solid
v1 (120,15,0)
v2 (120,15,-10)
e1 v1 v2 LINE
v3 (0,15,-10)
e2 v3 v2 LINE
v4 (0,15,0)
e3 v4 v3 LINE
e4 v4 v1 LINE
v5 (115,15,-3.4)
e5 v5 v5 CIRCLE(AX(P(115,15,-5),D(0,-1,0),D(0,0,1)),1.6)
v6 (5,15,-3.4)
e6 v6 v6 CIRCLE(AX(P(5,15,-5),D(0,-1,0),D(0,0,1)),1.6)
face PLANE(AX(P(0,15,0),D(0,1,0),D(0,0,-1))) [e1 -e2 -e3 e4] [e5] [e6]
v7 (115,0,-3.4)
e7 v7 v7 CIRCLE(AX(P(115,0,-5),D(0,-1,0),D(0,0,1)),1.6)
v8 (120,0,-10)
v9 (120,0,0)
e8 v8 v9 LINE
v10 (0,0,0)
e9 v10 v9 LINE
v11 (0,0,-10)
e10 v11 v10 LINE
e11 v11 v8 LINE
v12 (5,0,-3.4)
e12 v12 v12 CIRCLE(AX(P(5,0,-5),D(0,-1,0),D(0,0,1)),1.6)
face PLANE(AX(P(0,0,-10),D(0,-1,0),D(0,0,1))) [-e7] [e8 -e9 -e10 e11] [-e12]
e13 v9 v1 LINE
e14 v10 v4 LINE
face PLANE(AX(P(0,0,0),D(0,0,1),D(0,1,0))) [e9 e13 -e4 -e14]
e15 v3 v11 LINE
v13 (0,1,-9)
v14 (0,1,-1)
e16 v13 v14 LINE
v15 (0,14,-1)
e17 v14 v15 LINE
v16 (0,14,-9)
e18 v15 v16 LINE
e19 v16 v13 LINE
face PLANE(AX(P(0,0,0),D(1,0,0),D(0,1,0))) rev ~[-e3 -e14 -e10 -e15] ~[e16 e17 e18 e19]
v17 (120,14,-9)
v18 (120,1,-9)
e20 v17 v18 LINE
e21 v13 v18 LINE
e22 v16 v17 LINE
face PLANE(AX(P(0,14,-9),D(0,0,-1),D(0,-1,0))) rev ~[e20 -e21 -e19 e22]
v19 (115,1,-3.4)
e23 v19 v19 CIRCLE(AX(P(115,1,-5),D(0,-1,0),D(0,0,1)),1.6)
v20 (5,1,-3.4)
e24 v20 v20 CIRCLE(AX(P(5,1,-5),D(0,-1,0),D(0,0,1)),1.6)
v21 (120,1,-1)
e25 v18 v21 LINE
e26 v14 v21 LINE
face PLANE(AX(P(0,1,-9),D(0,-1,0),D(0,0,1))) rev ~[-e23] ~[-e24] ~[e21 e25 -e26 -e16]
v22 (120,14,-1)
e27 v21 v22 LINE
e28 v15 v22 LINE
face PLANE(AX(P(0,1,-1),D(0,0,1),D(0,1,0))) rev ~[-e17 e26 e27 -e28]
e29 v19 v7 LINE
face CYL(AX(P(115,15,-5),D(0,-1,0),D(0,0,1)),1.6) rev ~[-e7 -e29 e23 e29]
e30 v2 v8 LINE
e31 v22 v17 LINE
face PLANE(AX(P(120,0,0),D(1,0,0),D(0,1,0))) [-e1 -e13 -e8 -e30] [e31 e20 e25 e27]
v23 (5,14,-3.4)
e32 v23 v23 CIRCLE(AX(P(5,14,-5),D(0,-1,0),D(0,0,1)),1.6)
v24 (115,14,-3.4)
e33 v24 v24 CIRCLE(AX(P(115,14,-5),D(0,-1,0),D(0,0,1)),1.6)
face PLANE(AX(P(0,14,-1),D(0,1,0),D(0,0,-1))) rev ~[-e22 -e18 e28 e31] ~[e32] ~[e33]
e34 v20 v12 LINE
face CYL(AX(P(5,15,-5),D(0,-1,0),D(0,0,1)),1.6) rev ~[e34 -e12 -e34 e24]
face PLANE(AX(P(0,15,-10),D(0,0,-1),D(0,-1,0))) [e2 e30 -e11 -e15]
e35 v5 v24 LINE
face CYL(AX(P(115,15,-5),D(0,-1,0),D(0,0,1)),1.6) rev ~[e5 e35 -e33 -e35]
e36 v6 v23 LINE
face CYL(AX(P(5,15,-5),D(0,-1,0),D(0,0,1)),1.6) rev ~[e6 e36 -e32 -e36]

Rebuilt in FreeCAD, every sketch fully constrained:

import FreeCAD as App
import Part
import Sketcher

doc = App.newDocument("Part")
body = doc.addObject("PartDesign::Body", "Body")

# Sketch on YZ plane
sketch1 = body.newObject("Sketcher::SketchObject", "Sketch")
sketch1.AttachmentSupport = (doc.getObject("YZ_Plane"), [""])
sketch1.MapMode = "FlatFace"
sketch1.addGeometry(Part.LineSegment(App.Vector(15, 0, 0), App.Vector(0, 0, 0)), False)
sketch1.addGeometry(Part.LineSegment(App.Vector(0, 0, 0), App.Vector(0, -10, 0)), False)
sketch1.addGeometry(Part.LineSegment(App.Vector(0, -10, 0), App.Vector(15, -10, 0)), False)
sketch1.addGeometry(Part.LineSegment(App.Vector(15, -10, 0), App.Vector(15, 0, 0)), False)
sketch1.addGeometry(Part.LineSegment(App.Vector(1, -9, 0), App.Vector(1, -1, 0)), False)
sketch1.addGeometry(Part.LineSegment(App.Vector(1, -1, 0), App.Vector(14, -1, 0)), False)
sketch1.addGeometry(Part.LineSegment(App.Vector(14, -1, 0), App.Vector(14, -9, 0)), False)
sketch1.addGeometry(Part.LineSegment(App.Vector(14, -9, 0), App.Vector(1, -9, 0)), False)
sketch1.addConstraint(Sketcher.Constraint("Coincident", 0, 2, 1, 1))
sketch1.addConstraint(Sketcher.Constraint("Coincident", 1, 2, 2, 1))
sketch1.addConstraint(Sketcher.Constraint("Coincident", 2, 2, 3, 1))
sketch1.addConstraint(Sketcher.Constraint("Coincident", 3, 2, 0, 1))
sketch1.addConstraint(Sketcher.Constraint("Coincident", 4, 2, 5, 1))
sketch1.addConstraint(Sketcher.Constraint("Coincident", 5, 2, 6, 1))
sketch1.addConstraint(Sketcher.Constraint("Coincident", 6, 2, 7, 1))
sketch1.addConstraint(Sketcher.Constraint("Coincident", 7, 2, 4, 1))
sketch1.addConstraint(Sketcher.Constraint("Horizontal", 0))
sketch1.addConstraint(Sketcher.Constraint("Vertical", 1))
sketch1.addConstraint(Sketcher.Constraint("Horizontal", 2))
sketch1.addConstraint(Sketcher.Constraint("Vertical", 3))
sketch1.addConstraint(Sketcher.Constraint("Vertical", 4))
sketch1.addConstraint(Sketcher.Constraint("Horizontal", 5))
sketch1.addConstraint(Sketcher.Constraint("Vertical", 6))
sketch1.addConstraint(Sketcher.Constraint("Horizontal", 7))
sketch1.addConstraint(Sketcher.Constraint("Coincident", 0, 2, -1, 1))
sketch1.addConstraint(Sketcher.Constraint("DistanceX", 0, 2, 0, 1, 15.0))
sketch1.addConstraint(Sketcher.Constraint("DistanceX", 5, 1, 5, 2, 13.0))
sketch1.addConstraint(Sketcher.Constraint("DistanceY", 1, 2, 1, 1, 10.0))
sketch1.addConstraint(Sketcher.Constraint("DistanceY", 4, 1, 4, 2, 8.0))
sketch1.addConstraint(Sketcher.Constraint("DistanceX", -1, 1, 4, 2, 1.0))
sketch1.addConstraint(Sketcher.Constraint("DistanceY", 4, 2, -1, 1, 1.0))
pad1 = body.newObject("PartDesign::Pad", "Pad")
pad1.Profile = sketch1
pad1.Length = 120

# Sketch on XZ plane
sketch2 = body.newObject("Sketcher::SketchObject", "Sketch001")
sketch2.AttachmentSupport = (doc.getObject("XZ_Plane"), [""])
sketch2.MapMode = "FlatFace"
sketch2.AttachmentOffset = App.Placement(App.Vector(0, 0, -15), App.Rotation())
sketch2.addGeometry(Part.Circle(App.Vector(5, -5, 0), App.Vector(0, 0, 1), 1.6), False)
sketch2.addGeometry(Part.Circle(App.Vector(115, -5, 0), App.Vector(0, 0, 1), 1.6), False)
sketch2.addConstraint(Sketcher.Constraint("Equal", 0, 1))
sketch2.addConstraint(Sketcher.Constraint("Horizontal", 0, 3, 1, 3))
sketch2.addConstraint(Sketcher.Constraint("Diameter", 0, 3.2))
sketch2.addConstraint(Sketcher.Constraint("DistanceX", -1, 1, 0, 3, 5.0))
sketch2.addConstraint(Sketcher.Constraint("DistanceY", 0, 3, -1, 1, 5.0))
sketch2.addConstraint(Sketcher.Constraint("DistanceX", -1, 1, 1, 3, 115.0))
doc.recompute()
hole = body.newObject("PartDesign::Hole", "Hole")
hole.Profile = sketch2
hole.ThreadType = "None"
hole.Diameter = 3.2
hole.DepthType = "ThroughAll"
hole.Reversed = True

doc.recompute()
